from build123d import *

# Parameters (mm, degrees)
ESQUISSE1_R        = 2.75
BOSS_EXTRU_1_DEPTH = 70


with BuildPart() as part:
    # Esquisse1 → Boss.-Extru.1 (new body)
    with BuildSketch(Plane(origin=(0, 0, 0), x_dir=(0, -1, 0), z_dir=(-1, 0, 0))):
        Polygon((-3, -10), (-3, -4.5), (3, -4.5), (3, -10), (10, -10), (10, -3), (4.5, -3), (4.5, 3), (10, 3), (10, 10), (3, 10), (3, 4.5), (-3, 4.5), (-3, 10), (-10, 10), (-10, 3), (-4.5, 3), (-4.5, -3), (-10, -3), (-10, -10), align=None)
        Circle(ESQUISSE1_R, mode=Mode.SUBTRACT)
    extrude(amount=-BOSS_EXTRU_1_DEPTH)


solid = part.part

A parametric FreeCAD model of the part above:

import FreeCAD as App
import Part
import Sketcher

V = App.Vector

doc = App.newDocument("Part")
body = doc.addObject("PartDesign::Body", "Body")

sketch1 = body.newObject("Sketcher::SketchObject", "Sketch")
sketch1.AttachmentSupport = (doc.getObject("YZ_Plane"), [""])
sketch1.MapMode = "FlatFace"
sketch1.addGeometry([
    Part.LineSegment(V(3, -10, 0), V(3, -4.5, 0)),
    Part.LineSegment(V(3, -4.5, 0), V(-3, -4.5, 0)),
    Part.LineSegment(V(-3, -4.5, 0), V(-3, -10, 0)),
    Part.LineSegment(V(-3, -10, 0), V(-10, -10, 0)),
    Part.LineSegment(V(-10, -10, 0), V(-10, -3, 0)),
    Part.LineSegment(V(-10, -3, 0), V(-4.5, -3, 0)),
    Part.LineSegment(V(-4.5, -3, 0), V(-4.5, 3, 0)),
    Part.LineSegment(V(-4.5, 3, 0), V(-10, 3, 0)),
    Part.LineSegment(V(-10, 3, 0), V(-10, 10, 0)),
    Part.LineSegment(V(-10, 10, 0), V(-3, 10, 0)),
    Part.LineSegment(V(-3, 10, 0), V(-3, 4.5, 0)),
    Part.LineSegment(V(-3, 4.5, 0), V(3, 4.5, 0)),
    Part.LineSegment(V(3, 4.5, 0), V(3, 10, 0)),
    Part.LineSegment(V(3, 10, 0), V(10, 10, 0)),
    Part.LineSegment(V(10, 10, 0), V(10, 3, 0)),
    Part.LineSegment(V(10, 3, 0), V(4.5, 3, 0)),
    Part.LineSegment(V(4.5, 3, 0), V(4.5, -3, 0)),
    Part.LineSegment(V(4.5, -3, 0), V(10, -3, 0)),
    Part.LineSegment(V(10, -3, 0), V(10, -10, 0)),
    Part.LineSegment(V(10, -10, 0), V(3, -10, 0)),
    Part.Circle(V(0, 0, 0), V(0, 0, 1), 2.8),
], False)
sketch1.addConstraint([
    Sketcher.Constraint("Coincident", 0, 2, 1, 1),
    Sketcher.Constraint("Coincident", 1, 2, 2, 1),
    Sketcher.Constraint("Coincident", 2, 2, 3, 1),
    Sketcher.Constraint("Coincident", 3, 2, 4, 1),
    Sketcher.Constraint("Coincident", 4, 2, 5, 1),
    Sketcher.Constraint("Coincident", 5, 2, 6, 1),
    Sketcher.Constraint("Coincident", 6, 2, 7, 1),
    Sketcher.Constraint("Coincident", 7, 2, 8, 1),
    Sketcher.Constraint("Coincident", 8, 2, 9, 1),
    Sketcher.Constraint("Coincident", 9, 2, 10, 1),
    Sketcher.Constraint("Coincident", 10, 2, 11, 1),
    Sketcher.Constraint("Coincident", 11, 2, 12, 1),
    Sketcher.Constraint("Coincident", 12, 2, 13, 1),
    Sketcher.Constraint("Coincident", 13, 2, 14, 1),
    Sketcher.Constraint("Coincident", 14, 2, 15, 1),
    Sketcher.Constraint("Coincident", 15, 2, 16, 1),
    Sketcher.Constraint("Coincident", 16, 2, 17, 1),
    Sketcher.Constraint("Coincident", 17, 2, 18, 1),
    Sketcher.Constraint("Coincident", 18, 2, 19, 1),
    Sketcher.Constraint("Coincident", 19, 2, 0, 1),
    Sketcher.Constraint("Vertical", 0),
    Sketcher.Constraint("Horizontal", 1),
    Sketcher.Constraint("Vertical", 2),
    Sketcher.Constraint("Horizontal", 3),
    Sketcher.Constraint("Vertical", 4),
    Sketcher.Constraint("Horizontal", 5),
    Sketcher.Constraint("Vertical", 6),
    Sketcher.Constraint("Horizontal", 7),
    Sketcher.Constraint("Vertical", 8),
    Sketcher.Constraint("Horizontal", 9),
    Sketcher.Constraint("Vertical", 10),
    Sketcher.Constraint("Horizontal", 11),
    Sketcher.Constraint("Vertical", 12),
    Sketcher.Constraint("Horizontal", 13),
    Sketcher.Constraint("Vertical", 14),
    Sketcher.Constraint("Horizontal", 15),
    Sketcher.Constraint("Vertical", 16),
    Sketcher.Constraint("Horizontal", 17),
    Sketcher.Constraint("Vertical", 18),
    Sketcher.Constraint("Horizontal", 19),
    Sketcher.Constraint("Coincident", 20, 3, -1, 1),
    Sketcher.Constraint("Symmetric", 0, 2, 10, 2, -1, 1),
    Sketcher.Constraint("Symmetric", 2, 2, 12, 2, -1, 1),
    Sketcher.Constraint("Symmetric", 4, 2, 14, 2, -1, 1),
    Sketcher.Constraint("Symmetric", 6, 2, 16, 2, -1, 1),
    Sketcher.Constraint("Symmetric", 8, 2, 18, 2, -1, 1),
    Sketcher.Constraint("Symmetric", 9, 2, 12, 2, -2),
    Sketcher.Constraint("Symmetric", 7, 2, 14, 2, -2),
    Sketcher.Constraint("Equal", 17, 0),
    Sketcher.Constraint("Equal", 19, 4),
    Sketcher.Constraint("Equal", 11, 6),
    Sketcher.Constraint("Diameter", 20, 5.5),
    Sketcher.Constraint("DistanceX", 1, 2, 1, 1, 6.0),
    Sketcher.Constraint("DistanceX", 3, 2, 3, 1, 7.0),
    Sketcher.Constraint("DistanceX", 5, 1, 5, 2, 5.5),
])
pad1 = body.newObject("PartDesign::Pad", "Pad")
pad1.Profile = sketch1
pad1.Length = 70

doc.recompute()
